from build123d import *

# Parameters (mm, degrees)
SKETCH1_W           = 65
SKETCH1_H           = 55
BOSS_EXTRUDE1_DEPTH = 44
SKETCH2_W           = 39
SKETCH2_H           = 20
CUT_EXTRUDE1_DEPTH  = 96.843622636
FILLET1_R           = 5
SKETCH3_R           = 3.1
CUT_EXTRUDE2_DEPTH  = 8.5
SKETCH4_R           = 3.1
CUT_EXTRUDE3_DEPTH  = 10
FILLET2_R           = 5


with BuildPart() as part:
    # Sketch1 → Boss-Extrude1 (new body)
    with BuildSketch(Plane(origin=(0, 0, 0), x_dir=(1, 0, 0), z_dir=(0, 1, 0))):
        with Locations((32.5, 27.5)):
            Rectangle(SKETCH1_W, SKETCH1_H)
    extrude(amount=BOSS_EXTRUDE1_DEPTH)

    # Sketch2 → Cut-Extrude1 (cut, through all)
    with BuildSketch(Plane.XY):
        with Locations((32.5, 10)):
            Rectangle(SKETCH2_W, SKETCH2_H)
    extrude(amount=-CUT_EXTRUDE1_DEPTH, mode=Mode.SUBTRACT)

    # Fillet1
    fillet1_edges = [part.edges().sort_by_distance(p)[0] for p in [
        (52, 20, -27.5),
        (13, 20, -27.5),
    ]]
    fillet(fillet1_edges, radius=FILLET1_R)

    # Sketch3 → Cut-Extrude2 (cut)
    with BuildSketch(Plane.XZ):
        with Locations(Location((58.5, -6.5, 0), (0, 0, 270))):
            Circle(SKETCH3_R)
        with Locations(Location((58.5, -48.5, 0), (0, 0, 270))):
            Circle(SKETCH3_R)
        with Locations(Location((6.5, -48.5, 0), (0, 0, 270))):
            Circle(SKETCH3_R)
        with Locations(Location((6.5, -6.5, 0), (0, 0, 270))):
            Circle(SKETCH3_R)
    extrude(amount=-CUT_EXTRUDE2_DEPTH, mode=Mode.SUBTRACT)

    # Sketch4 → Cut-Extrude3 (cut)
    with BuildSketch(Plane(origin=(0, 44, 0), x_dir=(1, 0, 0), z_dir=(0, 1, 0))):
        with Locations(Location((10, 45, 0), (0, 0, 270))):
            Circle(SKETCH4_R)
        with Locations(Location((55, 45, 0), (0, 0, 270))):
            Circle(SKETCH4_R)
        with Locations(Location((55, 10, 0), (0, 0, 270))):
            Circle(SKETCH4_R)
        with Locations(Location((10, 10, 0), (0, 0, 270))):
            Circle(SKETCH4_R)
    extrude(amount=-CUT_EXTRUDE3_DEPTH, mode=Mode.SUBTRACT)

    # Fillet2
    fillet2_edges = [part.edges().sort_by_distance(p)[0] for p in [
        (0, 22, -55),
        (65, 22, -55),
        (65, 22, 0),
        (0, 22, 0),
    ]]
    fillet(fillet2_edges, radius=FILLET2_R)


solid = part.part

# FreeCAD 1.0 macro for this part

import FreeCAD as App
import Part
import Sketcher

V = App.Vector


def edges_at(feature, points):
    """Names of the edges that pass closest to the given points."""
    edges = feature.Shape.Edges
    near = lambda p: min(range(len(edges)), key=lambda i: edges[i].distToShape(Part.Vertex(*p))[0])
    return sorted({f"Edge{near(p) + 1}" for p in points})


def add_polygon(sketch, points):
    """Adds a closed chain of lines whose ends are joined by coincident constraints."""
    first, n = sketch.GeometryCount, len(points)
    for a, b in zip(points, points[1:] + points[:1]):
        sketch.addGeometry(Part.LineSegment(App.Vector(*a, 0), App.Vector(*b, 0)), False)
    for i in range(n):
        sketch.addConstraint(Sketcher.Constraint("Coincident", first + i, 2, first + (i + 1) % n, 1))

doc = App.newDocument("Part")
body = doc.addObject("PartDesign::Body", "Body")

# Sketch on XZ plane
sketch1 = body.newObject("Sketcher::SketchObject", "Sketch")
sketch1.AttachmentSupport = (doc.getObject("XZ_Plane"), [""])
sketch1.MapMode = "FlatFace"
add_polygon(sketch1, [(0, -55), (0, 0), (65, 0), (65, -55)])  # lines 0-3
sketch1.addConstraint(Sketcher.Constraint("Vertical", 0))
sketch1.addConstraint(Sketcher.Constraint("Horizontal", 1))
sketch1.addConstraint(Sketcher.Constraint("Vertical", 2))
sketch1.addConstraint(Sketcher.Constraint("Horizontal", 3))
sketch1.addConstraint(Sketcher.Constraint("Coincident", 0, 2, -1, 1))
sketch1.addConstraint(Sketcher.Constraint("DistanceX", 1, 1, 1, 2, 65.0))
sketch1.addConstraint(Sketcher.Constraint("DistanceY", 0, 1, 0, 2, 55.0))
pad1 = body.newObject("PartDesign::Pad", "Pad")
pad1.Profile = sketch1
pad1.Length = 44
pad1.Reversed = True

# Sketch on XY plane
sketch2 = body.newObject("Sketcher::SketchObject", "Sketch001")
sketch2.AttachmentSupport = (doc.getObject("XY_Plane"), [""])
sketch2.MapMode = "FlatFace"
add_polygon(sketch2, [(13, 20), (13, 0), (52, 0), (52, 20)])  # lines 0-3
sketch2.addConstraint(Sketcher.Constraint("Vertical", 0))
sketch2.addConstraint(Sketcher.Constraint("Horizontal", 1))
sketch2.addConstraint(Sketcher.Constraint("Vertical", 2))
sketch2.addConstraint(Sketcher.Constraint("Horizontal", 3))
sketch2.addConstraint(Sketcher.Constraint("PointOnObject", 0, 2, -1))
sketch2.addConstraint(Sketcher.Constraint("DistanceX", 1, 1, 1, 2, 39.0))
sketch2.addConstraint(Sketcher.Constraint("DistanceY", 0, 2, 0, 1, 20.0))
sketch2.addConstraint(Sketcher.Constraint("DistanceX", -1, 1, 0, 2, 13.0))
pocket1 = body.newObject("PartDesign::Pocket", "Pocket")
pocket1.Profile = sketch2
pocket1.Type = "ThroughAll"
doc.recompute()

fillet = body.newObject("PartDesign::Fillet", "Fillet")
fillet.Base = (pocket1, edges_at(pocket1, [(52, 20, -27.5), (13, 20, -27.5)]))
fillet.Radius = 5

# Sketch on XZ plane
sketch3 = body.newObject("Sketcher::SketchObject", "Sketch002")
sketch3.AttachmentSupport = (doc.getObject("XZ_Plane"), [""])
sketch3.MapMode = "FlatFace"
sketch3.addGeometry(Part.Circle(V(58.5, -6.5, 0), V(0, 0, 1), 3.1), False)
sketch3.addGeometry(Part.Circle(V(58.5, -48.5, 0), V(0, 0, 1), 3.1), False)
sketch3.addGeometry(Part.Circle(V(6.5, -48.5, 0), V(0, 0, 1), 3.1), False)
sketch3.addGeometry(Part.Circle(V(6.5, -6.5, 0), V(0, 0, 1), 3.1), False)
sketch3.addConstraint(Sketcher.Constraint("Equal", 0, 1))
sketch3.addConstraint(Sketcher.Constraint("Equal", 1, 2))
sketch3.addConstraint(Sketcher.Constraint("Equal", 2, 3))
sketch3.addConstraint(Sketcher.Constraint("Horizontal", 1, 3, 2, 3))
sketch3.addConstraint(Sketcher.Constraint("Horizontal", 0, 3, 3, 3))
sketch3.addConstraint(Sketcher.Constraint("Vertical", 0, 3, 1, 3))
sketch3.addConstraint(Sketcher.Constraint("Vertical", 2, 3, 3, 3))
sketch3.addConstraint(Sketcher.Constraint("Diameter", 0, 6.2))
sketch3.addConstraint(Sketcher.Constraint("DistanceY", 1, 3, 0, 3, 42.0))
sketch3.addConstraint(Sketcher.Constraint("DistanceX", 2, 3, 1, 3, 52.0))
sketch3.addConstraint(Sketcher.Constraint("DistanceX", -1, 1, 0, 3, 58.5))
sketch3.addConstraint(Sketcher.Constraint("DistanceY", 0, 3, -1, 1, 6.5))
pocket2 = body.newObject("PartDesign::Pocket", "Pocket001")
pocket2.Profile = sketch3
pocket2.Length = 8.5

# Sketch on XZ plane
sketch4 = body.newObject("Sketcher::SketchObject", "Sketch003")
sketch4.AttachmentSupport = (doc.getObject("XZ_Plane"), [""])
sketch4.MapMode = "FlatFace"
sketch4.AttachmentOffset = App.Placement(V(0, 0, -44), App.Rotation())
sketch4.addGeometry(Part.Circle(V(10, -45, 0), V(0, 0, 1), 3.1), False)
sketch4.addGeometry(Part.Circle(V(55, -45, 0), V(0, 0, 1), 3.1), False)
sketch4.addGeometry(Part.Circle(V(55, -10, 0), V(0, 0, 1), 3.1), False)
sketch4.addGeometry(Part.Circle(V(10, -10, 0), V(0, 0, 1), 3.1), False)
sketch4.addConstraint(Sketcher.Constraint("Equal", 0, 1))
sketch4.addConstraint(Sketcher.Constraint("Equal", 1, 2))
sketch4.addConstraint(Sketcher.Constraint("Equal", 2, 3))
sketch4.addConstraint(Sketcher.Constraint("Horizontal", 0, 3, 1, 3))
sketch4.addConstraint(Sketcher.Constraint("Horizontal", 2, 3, 3, 3))
sketch4.addConstraint(Sketcher.Constraint("Vertical", 1, 3, 2, 3))
sketch4.addConstraint(Sketcher.Constraint("Vertical", 0, 3, 3, 3))
sketch4.addConstraint(Sketcher.Constraint("Diameter", 0, 6.2))
sketch4.addConstraint(Sketcher.Constraint("DistanceX", -1, 1, 0, 3, 10.0))
sketch4.addConstraint(Sketcher.Constraint("DistanceY", 0, 3, -1, 1, 45.0))
sketch4.addConstraint(Sketcher.Constraint("DistanceX", -1, 1, 1, 3, 55.0))
sketch4.addConstraint(Sketcher.Constraint("DistanceY", 2, 3, -1, 1, 10.0))
pocket3 = body.newObject("PartDesign::Pocket", "Pocket002")
pocket3.Profile = sketch4
pocket3.Length = 10
pocket3.Reversed = True
doc.recompute()

fillet2 = body.newObject("PartDesign::Fillet", "Fillet001")
fillet2.Base = (pocket3, edges_at(pocket3, [
    (0, 22, -55),
    (65, 22, -55),
    (65, 22, 0),
    (0, 22, 0),
]))
fillet2.Radius = 5

doc.recompute()
